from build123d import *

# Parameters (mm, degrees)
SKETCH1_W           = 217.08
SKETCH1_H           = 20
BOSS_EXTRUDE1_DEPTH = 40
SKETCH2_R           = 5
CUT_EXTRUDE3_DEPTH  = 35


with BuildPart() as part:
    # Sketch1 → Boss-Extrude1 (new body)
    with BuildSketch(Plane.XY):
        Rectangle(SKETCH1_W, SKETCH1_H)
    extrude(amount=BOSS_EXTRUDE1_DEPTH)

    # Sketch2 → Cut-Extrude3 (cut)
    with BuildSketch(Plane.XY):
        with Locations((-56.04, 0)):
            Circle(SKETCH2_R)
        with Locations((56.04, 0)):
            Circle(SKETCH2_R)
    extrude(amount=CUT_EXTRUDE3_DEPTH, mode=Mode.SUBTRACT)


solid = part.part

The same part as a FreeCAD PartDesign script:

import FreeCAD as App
import Part
import Sketcher

V = App.Vector
Q = App.Units.Quantity

doc = App.newDocument("Part")
params = doc.addObject("Spreadsheet::Sheet", "Params")
for row, (alias, value) in enumerate([
    ("sketch1_height", "20 mm"),
    ("sketch1_width", "217.08 mm"),
    ("pad1_length", "40 mm"),
    ("sketch2_diameter", "10 mm"),
    ("pocket1_length", "35 mm"),
], start=1):
    params.set(f"A{row}", alias)
    params.set(f"B{row}", "=" + value)
    params.setAlias(f"B{row}", alias)

body = doc.addObject("PartDesign::Body", "Body")

# Sketch on XY plane
sketch1 = body.newObject("Sketcher::SketchObject", "Sketch")
sketch1.AttachmentSupport = (doc.getObject("XY_Plane"), [""])
sketch1.MapMode = "FlatFace"
sketch1.addGeometry(Part.LineSegment(V(-109, 10, 0), V(-109, -10, 0)), False)
sketch1.addGeometry(Part.LineSegment(V(-109, -10, 0), V(109, -10, 0)), False)
sketch1.addGeometry(Part.LineSegment(V(109, -10, 0), V(109, 10, 0)), False)
sketch1.addGeometry(Part.LineSegment(V(109, 10, 0), V(-109, 10, 0)), False)
sketch1.addConstraint(Sketcher.Constraint("Coincident", 0, 2, 1, 1))
sketch1.addConstraint(Sketcher.Constraint("Coincident", 1, 2, 2, 1))
sketch1.addConstraint(Sketcher.Constraint("Coincident", 2, 2, 3, 1))
sketch1.addConstraint(Sketcher.Constraint("Coincident", 3, 2, 0, 1))
sketch1.addConstraint(Sketcher.Constraint("Vertical", 0))
sketch1.addConstraint(Sketcher.Constraint("Horizontal", 1))
sketch1.addConstraint(Sketcher.Constraint("Vertical", 2))
sketch1.addConstraint(Sketcher.Constraint("Horizontal", 3))
sketch1.addConstraint(Sketcher.Constraint("Symmetric", 0, 2, 2, 2, -1, 1))
sketch1.addConstraint(Sketcher.Constraint("DistanceY", 0, 2, 0, 1, Q("20 mm")))
sketch1.addConstraint(Sketcher.Constraint("DistanceX", 1, 1, 1, 2, Q("217.08 mm")))
sketch1.setExpression("Constraints[9]", "Params.sketch1_height")
sketch1.setExpression("Constraints[10]", "Params.sketch1_width")
pad1 = body.newObject("PartDesign::Pad", "Pad")
pad1.Profile = sketch1
pad1.setExpression("Length", "Params.pad1_length")

# Sketch on XY plane
sketch2 = body.newObject("Sketcher::SketchObject", "Sketch001")
sketch2.AttachmentSupport = (doc.getObject("XY_Plane"), [""])
sketch2.MapMode = "FlatFace"
sketch2.addGeometry(Part.Circle(V(-56, 0, 0), V(0, 0, 1), 5), False)
sketch2.addGeometry(Part.Circle(V(56, 0, 0), V(0, 0, 1), 5), False)
sketch2.addConstraint(Sketcher.Constraint("Equal", 0, 1))
sketch2.addConstraint(Sketcher.Constraint("Symmetric", 0, 3, 1, 3, -1, 1))
sketch2.addConstraint(Sketcher.Constraint("PointOnObject", 0, 3, -1))
sketch2.addConstraint(Sketcher.Constraint("Diameter", 0, Q("10 mm")))
sketch2.addConstraint(Sketcher.Constraint("DistanceX", 0, 3, -1, 1, Q("56.04 mm")))
sketch2.setExpression("Constraints[3]", "Params.sketch2_diameter")
pocket1 = body.newObject("PartDesign::Pocket", "Pocket")
pocket1.Profile = sketch2
pocket1.setExpression("Length", "Params.pocket1_length")
pocket1.Reversed = True

doc.recompute()
